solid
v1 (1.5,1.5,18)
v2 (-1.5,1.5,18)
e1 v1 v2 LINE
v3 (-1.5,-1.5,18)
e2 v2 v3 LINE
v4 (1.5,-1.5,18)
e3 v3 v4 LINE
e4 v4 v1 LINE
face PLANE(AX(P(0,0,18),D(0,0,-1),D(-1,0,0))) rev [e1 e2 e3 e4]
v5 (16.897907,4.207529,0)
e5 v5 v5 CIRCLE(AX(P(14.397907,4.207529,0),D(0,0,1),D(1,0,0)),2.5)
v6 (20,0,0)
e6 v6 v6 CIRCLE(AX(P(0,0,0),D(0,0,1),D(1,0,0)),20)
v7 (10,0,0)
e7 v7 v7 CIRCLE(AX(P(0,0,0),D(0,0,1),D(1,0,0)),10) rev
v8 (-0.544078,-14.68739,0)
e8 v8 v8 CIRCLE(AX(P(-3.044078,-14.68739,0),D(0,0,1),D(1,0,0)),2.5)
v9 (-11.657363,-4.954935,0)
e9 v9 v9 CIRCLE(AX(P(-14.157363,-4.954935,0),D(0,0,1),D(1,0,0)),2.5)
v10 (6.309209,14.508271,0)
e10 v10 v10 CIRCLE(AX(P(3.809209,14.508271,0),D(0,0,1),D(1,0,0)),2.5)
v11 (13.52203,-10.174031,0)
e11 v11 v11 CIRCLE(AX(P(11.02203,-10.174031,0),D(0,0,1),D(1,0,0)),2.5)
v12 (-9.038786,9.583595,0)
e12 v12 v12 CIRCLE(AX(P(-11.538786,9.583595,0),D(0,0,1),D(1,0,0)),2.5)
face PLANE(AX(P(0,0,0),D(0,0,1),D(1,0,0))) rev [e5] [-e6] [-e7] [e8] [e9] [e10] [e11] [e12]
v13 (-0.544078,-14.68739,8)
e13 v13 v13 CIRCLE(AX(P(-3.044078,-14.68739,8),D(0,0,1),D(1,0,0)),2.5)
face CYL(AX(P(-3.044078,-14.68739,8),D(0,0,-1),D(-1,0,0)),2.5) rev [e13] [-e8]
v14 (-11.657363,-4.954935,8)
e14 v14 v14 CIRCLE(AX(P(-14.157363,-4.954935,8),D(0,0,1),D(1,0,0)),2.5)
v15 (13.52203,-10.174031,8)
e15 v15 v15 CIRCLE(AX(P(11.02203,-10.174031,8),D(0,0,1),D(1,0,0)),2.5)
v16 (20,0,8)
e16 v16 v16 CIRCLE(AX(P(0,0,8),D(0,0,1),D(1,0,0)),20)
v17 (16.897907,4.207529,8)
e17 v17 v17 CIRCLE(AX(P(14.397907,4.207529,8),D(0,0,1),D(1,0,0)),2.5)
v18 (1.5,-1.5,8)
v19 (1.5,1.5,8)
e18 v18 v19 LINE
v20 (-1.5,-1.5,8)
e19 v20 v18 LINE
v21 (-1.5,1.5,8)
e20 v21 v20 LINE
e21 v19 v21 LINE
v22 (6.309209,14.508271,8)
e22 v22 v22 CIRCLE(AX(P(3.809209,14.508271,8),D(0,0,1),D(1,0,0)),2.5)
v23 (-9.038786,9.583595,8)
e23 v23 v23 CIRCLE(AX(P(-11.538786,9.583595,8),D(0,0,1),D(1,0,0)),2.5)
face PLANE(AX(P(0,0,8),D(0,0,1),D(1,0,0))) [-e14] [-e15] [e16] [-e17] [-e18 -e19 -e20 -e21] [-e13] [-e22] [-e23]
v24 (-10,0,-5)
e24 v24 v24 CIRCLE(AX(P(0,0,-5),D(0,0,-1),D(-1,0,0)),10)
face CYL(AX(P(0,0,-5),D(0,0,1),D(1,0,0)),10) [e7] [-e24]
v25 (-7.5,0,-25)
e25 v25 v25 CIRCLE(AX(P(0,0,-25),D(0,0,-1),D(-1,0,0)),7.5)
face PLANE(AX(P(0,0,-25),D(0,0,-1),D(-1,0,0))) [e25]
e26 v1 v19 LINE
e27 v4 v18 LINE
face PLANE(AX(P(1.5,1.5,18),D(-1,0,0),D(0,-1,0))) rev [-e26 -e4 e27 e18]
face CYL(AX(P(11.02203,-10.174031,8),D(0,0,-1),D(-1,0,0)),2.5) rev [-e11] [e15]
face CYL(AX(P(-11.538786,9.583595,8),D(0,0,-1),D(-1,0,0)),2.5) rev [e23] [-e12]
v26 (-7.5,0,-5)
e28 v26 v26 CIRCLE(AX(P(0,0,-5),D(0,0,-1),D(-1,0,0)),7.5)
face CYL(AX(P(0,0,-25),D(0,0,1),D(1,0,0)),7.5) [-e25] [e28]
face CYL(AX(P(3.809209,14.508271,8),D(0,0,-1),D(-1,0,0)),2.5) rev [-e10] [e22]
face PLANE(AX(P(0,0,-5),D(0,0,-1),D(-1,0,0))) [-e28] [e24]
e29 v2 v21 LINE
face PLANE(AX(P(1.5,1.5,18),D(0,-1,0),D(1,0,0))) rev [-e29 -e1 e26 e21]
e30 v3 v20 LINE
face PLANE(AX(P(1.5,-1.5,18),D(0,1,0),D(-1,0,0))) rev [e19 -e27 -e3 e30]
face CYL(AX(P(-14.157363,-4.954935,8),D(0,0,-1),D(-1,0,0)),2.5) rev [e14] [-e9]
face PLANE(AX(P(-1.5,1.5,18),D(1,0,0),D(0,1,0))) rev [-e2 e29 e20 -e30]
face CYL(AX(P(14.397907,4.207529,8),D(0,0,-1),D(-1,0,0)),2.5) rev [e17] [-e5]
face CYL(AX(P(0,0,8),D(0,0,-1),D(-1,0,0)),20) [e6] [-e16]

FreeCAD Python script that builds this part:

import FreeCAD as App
import Part
import Sketcher

V = App.Vector


def add_polygon(sketch, points):
    """Adds a closed chain of lines whose ends are joined by coincident constraints."""
    first, n = sketch.GeometryCount, len(points)
    for a, b in zip(points, points[1:] + points[:1]):
        sketch.addGeometry(Part.LineSegment(App.Vector(*a, 0), App.Vector(*b, 0)), False)
    for i in range(n):
        sketch.addConstraint(Sketcher.Constraint("Coincident", first + i, 2, first + (i + 1) % n, 1))

doc = App.newDocument("Part")
body = doc.addObject("PartDesign::Body", "Body")

# Sketch on XY plane
sketch1 = body.newObject("Sketcher::SketchObject", "Sketch")
sketch1.AttachmentSupport = (doc.getObject("XY_Plane"), [""])
sketch1.MapMode = "FlatFace"
sketch1.addGeometry([
    Part.Circle(V(0, 0, 0), V(0, 0, 1), 20),  # 0
    Part.Circle(V(-3.044078, -14.68739, 0), V(0, 0, 1), 2.5),  # 1
    Part.Circle(V(-14.157363, -4.954935, 0), V(0, 0, 1), 2.5),  # 2
    Part.Circle(V(11.02203, -10.174031, 0), V(0, 0, 1), 2.5),  # 3
    Part.Circle(V(-11.538786, 9.583595, 0), V(0, 0, 1), 2.5),  # 4
    Part.Circle(V(14.397907, 4.207529, 0), V(0, 0, 1), 2.5),  # 5
    Part.Circle(V(3.809209, 14.508271, 0), V(0, 0, 1), 2.5),  # 6
], False)
sketch1.addConstraint([
    Sketcher.Constraint("Coincident", 0, 3, -1, 1),
    Sketcher.Constraint("Equal", 1, 2),
    Sketcher.Constraint("Equal", 2, 3),
    Sketcher.Constraint("Equal", 3, 4),
    Sketcher.Constraint("Equal", 4, 5),
    Sketcher.Constraint("Equal", 5, 6),
    Sketcher.Constraint("Diameter", 0, 40.0),
    Sketcher.Constraint("Diameter", 1, 5.0),
    Sketcher.Constraint("DistanceY", 3, 3, 6, 3, 24.682302),
    Sketcher.Constraint("DistanceX", 1, 3, -1, 1, 3.044078),
    Sketcher.Constraint("DistanceY", 1, 3, -1, 1, 14.68739),
    Sketcher.Constraint("DistanceX", -1, 1, 3, 3, 11.02203),
    Sketcher.Constraint("DistanceY", 3, 3, -1, 1, 10.174031),
    Sketcher.Constraint("DistanceY", -1, 1, 5, 3, 4.207529),
    Sketcher.Constraint("DistanceX", -1, 1, 6, 3, 3.809209),
    Sketcher.Constraint("DistanceY", 2, 3, 4, 3, 14.53853),
    Sketcher.Constraint("DistanceX", 2, 3, 5, 3, 28.55527),
    Sketcher.Constraint("DistanceX", 2, 3, -1, 1, 14.157363),
    Sketcher.Constraint("DistanceY", 2, 3, -1, 1, 4.954935),
    Sketcher.Constraint("DistanceX", 4, 3, -1, 1, 11.538786),
])
pad1 = body.newObject("PartDesign::Pad", "Pad")
pad1.Profile = sketch1
pad1.Length = 8

# Sketch on XY plane
sketch2 = body.newObject("Sketcher::SketchObject", "Sketch001")
sketch2.AttachmentSupport = (doc.getObject("XY_Plane"), [""])
sketch2.MapMode = "FlatFace"
sketch2.AttachmentOffset = App.Placement(V(0, 0, 8), App.Rotation())
add_polygon(sketch2, [(-1.5, 1.5), (-1.5, -1.5), (1.5, -1.5), (1.5, 1.5)])  # lines 0-3
sketch2.addConstraint([
    Sketcher.Constraint("Vertical", 0),
    Sketcher.Constraint("Horizontal", 1),
    Sketcher.Constraint("Vertical", 2),
    Sketcher.Constraint("Horizontal", 3),
    Sketcher.Constraint("Symmetric", 0, 2, 2, 2, -1, 1),
    Sketcher.Constraint("Equal", 3, 0),
    Sketcher.Constraint("DistanceX", 1, 1, 1, 2, 3.0),
])
pad2 = body.newObject("PartDesign::Pad", "Pad001")
pad2.Profile = sketch2
pad2.Length = 10

# Sketch on XY plane
sketch3 = body.newObject("Sketcher::SketchObject", "Sketch002")
sketch3.AttachmentSupport = (doc.getObject("XY_Plane"), [""])
sketch3.MapMode = "FlatFace"
sketch3.addGeometry(Part.Circle(V(0, 0, 0), V(0, 0, 1), 7.5), False)
sketch3.addConstraint([
    Sketcher.Constraint("Coincident", 0, 3, -1, 1),
    Sketcher.Constraint("Diameter", 0, 15.0),
])
pad3 = body.newObject("PartDesign::Pad", "Pad002")
pad3.Profile = sketch3
pad3.Length = 25
pad3.Reversed = True

# Sketch on XY plane
sketch4 = body.newObject("Sketcher::SketchObject", "Sketch003")
sketch4.AttachmentSupport = (doc.getObject("XY_Plane"), [""])
sketch4.MapMode = "FlatFace"
sketch4.addGeometry(Part.Circle(V(0, 0, 0), V(0, 0, 1), 10), False)
sketch4.addConstraint([
    Sketcher.Constraint("Coincident", 0, 3, -1, 1),
    Sketcher.Constraint("Diameter", 0, 20.0),
])
pad4 = body.newObject("PartDesign::Pad", "Pad003")
pad4.Profile = sketch4
pad4.Length = 5
pad4.Reversed = True

doc.recompute()
